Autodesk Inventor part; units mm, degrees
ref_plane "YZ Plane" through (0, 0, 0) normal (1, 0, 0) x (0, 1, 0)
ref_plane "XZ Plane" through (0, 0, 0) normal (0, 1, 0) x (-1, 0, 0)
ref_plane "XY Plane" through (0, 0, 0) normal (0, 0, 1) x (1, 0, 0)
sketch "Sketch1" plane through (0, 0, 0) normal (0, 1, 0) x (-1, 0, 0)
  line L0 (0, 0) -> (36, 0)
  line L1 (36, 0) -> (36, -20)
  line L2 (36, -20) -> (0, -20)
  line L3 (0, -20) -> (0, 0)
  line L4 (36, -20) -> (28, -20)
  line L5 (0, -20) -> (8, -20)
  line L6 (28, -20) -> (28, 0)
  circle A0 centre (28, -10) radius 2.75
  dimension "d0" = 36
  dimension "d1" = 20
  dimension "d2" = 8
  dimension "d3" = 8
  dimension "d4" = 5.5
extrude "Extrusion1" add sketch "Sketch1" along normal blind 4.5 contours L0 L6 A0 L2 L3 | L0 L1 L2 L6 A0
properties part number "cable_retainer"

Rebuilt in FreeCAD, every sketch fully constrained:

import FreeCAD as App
import Part
import Sketcher
from FreeCAD import Vector
Q = App.Units.Quantity


def add_polygon(sketch, points):
    """Adds a closed chain of lines whose ends are joined by coincident constraints."""
    first, n = sketch.GeometryCount, len(points)
    for a, b in zip(points, points[1:] + points[:1]):
        sketch.addGeometry(Part.LineSegment(App.Vector(*a, 0), App.Vector(*b, 0)), False)
    for i in range(n):
        sketch.addConstraint(Sketcher.Constraint("Coincident", first + i, 2, first + (i + 1) % n, 1))

doc = App.newDocument("Part")
body = doc.addObject("PartDesign::Body", "Body")

sketch1 = body.newObject("Sketcher::SketchObject", "Sketch")
sketch1.AttachmentSupport = (doc.getObject("XZ_Plane"), [""])
sketch1.MapMode = "FlatFace"
add_polygon(sketch1, [(0, 0), (0, -20), (-36, -20), (-36, 0)])
sketch1.addGeometry(Part.Circle(Vector(-28, -10, 0), Vector(0, 0, 1), 2.75), False)
sketch1.addConstraint([
    Sketcher.Constraint("Vertical", 0),
    Sketcher.Constraint("Horizontal", 1),
    Sketcher.Constraint("Vertical", 2),
    Sketcher.Constraint("Horizontal", 3),
    Sketcher.Constraint("Coincident", 3, 2, -1, 1),
    Sketcher.Constraint("Diameter", 4, Q("5.5 mm")),
    Sketcher.Constraint("DistanceX", 1, 2, 1, 1, Q("36 mm")),
    Sketcher.Constraint("DistanceY", 0, 2, 0, 1, Q("20 mm")),
    Sketcher.Constraint("DistanceX", 1, 2, 4, 3, Q("8 mm")),
    Sketcher.Constraint("DistanceY", 4, 3, -1, 1, Q("10 mm")),
])
pad1 = body.newObject("PartDesign::Pad", "Pad")
pad1.Profile = sketch1
pad1.Length = 4.5
pad1.Reversed = True

doc.recompute()
